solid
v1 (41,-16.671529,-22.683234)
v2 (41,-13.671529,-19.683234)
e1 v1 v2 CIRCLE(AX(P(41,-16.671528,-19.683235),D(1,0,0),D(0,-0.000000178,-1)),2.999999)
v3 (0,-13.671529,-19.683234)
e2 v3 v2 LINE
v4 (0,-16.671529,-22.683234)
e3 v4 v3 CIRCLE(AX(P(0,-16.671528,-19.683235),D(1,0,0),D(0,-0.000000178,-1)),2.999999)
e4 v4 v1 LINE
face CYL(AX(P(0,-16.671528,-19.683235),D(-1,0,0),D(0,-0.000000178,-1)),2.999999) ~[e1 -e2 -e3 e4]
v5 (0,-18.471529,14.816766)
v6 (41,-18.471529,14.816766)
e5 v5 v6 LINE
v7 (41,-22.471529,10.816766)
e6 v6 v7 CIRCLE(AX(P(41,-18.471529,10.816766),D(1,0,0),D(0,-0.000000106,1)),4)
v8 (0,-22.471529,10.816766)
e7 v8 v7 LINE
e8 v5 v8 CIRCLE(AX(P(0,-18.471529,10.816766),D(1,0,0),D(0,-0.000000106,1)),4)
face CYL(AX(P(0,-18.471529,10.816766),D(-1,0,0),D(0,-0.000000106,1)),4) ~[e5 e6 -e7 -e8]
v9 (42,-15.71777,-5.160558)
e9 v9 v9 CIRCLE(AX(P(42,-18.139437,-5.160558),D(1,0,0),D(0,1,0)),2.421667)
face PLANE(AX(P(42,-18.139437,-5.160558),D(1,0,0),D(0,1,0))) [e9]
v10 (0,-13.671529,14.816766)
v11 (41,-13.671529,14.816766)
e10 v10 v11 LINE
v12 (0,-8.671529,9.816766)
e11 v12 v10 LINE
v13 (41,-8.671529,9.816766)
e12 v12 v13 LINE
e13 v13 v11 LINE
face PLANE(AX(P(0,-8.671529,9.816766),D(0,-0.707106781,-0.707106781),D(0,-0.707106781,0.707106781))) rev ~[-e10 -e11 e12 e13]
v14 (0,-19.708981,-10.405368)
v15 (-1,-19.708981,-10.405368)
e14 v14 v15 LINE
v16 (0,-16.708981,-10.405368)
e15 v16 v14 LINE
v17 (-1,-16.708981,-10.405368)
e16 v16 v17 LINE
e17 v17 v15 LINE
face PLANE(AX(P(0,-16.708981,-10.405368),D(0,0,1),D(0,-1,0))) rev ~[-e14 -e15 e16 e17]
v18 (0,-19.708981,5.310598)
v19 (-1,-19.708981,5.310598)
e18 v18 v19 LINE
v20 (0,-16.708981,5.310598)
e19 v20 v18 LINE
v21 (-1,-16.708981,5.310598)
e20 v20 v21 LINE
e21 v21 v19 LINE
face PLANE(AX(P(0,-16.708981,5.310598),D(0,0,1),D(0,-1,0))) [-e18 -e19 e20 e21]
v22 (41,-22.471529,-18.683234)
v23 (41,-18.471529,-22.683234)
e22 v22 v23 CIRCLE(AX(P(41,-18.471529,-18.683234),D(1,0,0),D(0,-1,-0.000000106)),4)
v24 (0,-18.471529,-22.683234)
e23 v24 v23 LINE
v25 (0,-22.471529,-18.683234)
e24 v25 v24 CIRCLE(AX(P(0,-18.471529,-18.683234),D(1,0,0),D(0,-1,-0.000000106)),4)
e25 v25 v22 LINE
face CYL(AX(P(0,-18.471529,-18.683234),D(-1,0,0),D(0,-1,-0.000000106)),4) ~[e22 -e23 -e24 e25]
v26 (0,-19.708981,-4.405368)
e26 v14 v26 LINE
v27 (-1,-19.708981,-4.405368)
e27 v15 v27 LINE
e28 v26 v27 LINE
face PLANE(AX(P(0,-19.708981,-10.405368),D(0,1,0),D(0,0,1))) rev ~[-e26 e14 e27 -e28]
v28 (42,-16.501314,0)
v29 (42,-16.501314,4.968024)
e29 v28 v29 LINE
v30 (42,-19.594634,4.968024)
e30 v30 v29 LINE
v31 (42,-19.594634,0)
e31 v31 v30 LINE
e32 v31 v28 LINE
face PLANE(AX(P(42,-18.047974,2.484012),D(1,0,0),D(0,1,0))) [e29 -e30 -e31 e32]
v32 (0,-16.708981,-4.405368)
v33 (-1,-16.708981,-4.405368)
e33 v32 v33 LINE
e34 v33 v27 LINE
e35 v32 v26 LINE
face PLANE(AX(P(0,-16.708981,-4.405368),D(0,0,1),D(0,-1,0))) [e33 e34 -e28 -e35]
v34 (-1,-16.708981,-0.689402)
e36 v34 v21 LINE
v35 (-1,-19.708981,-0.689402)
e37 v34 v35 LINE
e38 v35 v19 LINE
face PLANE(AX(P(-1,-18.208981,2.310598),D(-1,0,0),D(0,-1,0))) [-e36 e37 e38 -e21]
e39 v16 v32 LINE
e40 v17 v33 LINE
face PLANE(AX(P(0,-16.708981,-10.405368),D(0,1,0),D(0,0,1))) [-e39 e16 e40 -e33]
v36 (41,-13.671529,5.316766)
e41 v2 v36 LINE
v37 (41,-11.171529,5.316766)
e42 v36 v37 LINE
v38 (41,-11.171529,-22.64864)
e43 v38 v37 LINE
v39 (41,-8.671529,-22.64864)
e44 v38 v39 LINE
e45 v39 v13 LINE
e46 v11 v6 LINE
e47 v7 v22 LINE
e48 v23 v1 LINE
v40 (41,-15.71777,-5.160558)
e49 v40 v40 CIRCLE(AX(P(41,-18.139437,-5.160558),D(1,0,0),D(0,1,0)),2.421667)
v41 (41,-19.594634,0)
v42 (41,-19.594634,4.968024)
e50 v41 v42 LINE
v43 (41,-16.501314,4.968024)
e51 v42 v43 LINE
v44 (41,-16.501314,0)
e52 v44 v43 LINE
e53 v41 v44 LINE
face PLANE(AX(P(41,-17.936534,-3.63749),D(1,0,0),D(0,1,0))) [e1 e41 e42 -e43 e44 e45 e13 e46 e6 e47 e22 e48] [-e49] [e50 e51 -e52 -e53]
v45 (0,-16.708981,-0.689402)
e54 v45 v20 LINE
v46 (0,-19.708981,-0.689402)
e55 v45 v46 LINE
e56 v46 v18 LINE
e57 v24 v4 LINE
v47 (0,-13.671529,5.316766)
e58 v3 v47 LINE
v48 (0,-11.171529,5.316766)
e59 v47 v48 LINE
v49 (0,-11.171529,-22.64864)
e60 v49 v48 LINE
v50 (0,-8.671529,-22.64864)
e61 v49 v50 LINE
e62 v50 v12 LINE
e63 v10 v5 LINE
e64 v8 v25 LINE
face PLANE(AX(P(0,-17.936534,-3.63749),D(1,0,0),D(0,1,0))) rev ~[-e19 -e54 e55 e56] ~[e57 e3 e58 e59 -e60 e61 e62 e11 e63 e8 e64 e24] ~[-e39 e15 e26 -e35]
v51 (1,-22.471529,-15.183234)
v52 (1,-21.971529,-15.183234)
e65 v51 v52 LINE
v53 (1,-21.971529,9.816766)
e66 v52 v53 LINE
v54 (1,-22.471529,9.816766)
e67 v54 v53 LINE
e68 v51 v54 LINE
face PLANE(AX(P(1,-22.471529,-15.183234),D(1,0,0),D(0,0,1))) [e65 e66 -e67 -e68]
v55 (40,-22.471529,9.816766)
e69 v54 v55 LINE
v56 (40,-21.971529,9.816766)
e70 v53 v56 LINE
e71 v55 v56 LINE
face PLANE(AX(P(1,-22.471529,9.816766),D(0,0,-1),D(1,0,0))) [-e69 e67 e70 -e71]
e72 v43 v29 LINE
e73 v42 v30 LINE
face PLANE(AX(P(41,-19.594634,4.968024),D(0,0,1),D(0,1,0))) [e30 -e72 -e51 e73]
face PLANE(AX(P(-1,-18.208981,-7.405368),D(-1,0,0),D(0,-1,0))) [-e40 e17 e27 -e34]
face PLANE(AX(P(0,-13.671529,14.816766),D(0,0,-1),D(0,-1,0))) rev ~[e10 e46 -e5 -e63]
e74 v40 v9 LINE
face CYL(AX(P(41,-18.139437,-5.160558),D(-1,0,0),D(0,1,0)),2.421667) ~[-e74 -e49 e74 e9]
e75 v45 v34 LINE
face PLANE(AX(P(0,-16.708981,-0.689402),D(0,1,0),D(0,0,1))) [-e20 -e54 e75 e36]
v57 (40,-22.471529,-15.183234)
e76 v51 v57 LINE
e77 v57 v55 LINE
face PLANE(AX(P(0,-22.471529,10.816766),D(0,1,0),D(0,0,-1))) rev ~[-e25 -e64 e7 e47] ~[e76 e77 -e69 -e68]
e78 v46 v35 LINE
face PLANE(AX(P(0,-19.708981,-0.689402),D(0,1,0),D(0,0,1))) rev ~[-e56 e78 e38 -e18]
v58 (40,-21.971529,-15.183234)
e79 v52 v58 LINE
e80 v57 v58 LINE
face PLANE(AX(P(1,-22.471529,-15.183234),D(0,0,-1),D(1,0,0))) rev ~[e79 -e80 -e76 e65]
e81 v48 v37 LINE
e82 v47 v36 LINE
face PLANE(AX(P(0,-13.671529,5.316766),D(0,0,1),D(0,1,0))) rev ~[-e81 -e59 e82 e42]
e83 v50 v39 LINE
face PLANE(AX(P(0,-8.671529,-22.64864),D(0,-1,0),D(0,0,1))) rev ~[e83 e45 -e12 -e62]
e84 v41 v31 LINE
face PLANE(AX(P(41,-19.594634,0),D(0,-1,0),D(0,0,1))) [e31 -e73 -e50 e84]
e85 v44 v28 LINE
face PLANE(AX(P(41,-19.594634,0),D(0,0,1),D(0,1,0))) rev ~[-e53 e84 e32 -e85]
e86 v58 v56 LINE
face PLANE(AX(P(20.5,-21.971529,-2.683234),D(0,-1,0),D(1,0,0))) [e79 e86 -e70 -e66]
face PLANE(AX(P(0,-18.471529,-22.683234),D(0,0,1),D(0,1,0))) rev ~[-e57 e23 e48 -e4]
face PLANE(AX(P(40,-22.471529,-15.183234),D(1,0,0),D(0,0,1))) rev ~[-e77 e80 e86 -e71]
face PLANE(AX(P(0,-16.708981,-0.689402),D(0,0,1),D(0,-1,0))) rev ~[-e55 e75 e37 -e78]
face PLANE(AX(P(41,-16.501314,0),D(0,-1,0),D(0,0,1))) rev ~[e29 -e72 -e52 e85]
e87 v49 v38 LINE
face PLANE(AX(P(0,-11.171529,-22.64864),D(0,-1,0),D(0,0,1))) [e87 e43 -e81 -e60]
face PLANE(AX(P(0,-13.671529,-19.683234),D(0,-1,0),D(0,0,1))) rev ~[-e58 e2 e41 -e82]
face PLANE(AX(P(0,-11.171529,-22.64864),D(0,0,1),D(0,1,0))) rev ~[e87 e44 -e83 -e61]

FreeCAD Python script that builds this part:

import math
import FreeCAD as App
import Part
import Sketcher
Q = App.Units.Quantity


def add_polygon(sketch, points):
    """Adds a closed chain of lines whose ends are joined by coincident constraints."""
    first, n = sketch.GeometryCount, len(points)
    for a, b in zip(points, points[1:] + points[:1]):
        sketch.addGeometry(Part.LineSegment(App.Vector(*a, 0), App.Vector(*b, 0)), False)
    for i in range(n):
        sketch.addConstraint(Sketcher.Constraint("Coincident", first + i, 2, first + (i + 1) % n, 1))

doc = App.newDocument("Part")
body = doc.addObject("PartDesign::Body", "Body")

sketch1 = body.newObject("Sketcher::SketchObject", "Sketch")
sketch1.AttachmentSupport = (doc.getObject("YZ_Plane"), [""])
sketch1.MapMode = "FlatFace"
sketch1.addGeometry(Part.LineSegment(App.Vector(-13.7, 14.8, 0), App.Vector(-18.5, 14.8, 0)), False)
sketch1.addGeometry(Part.ArcOfCircle(Part.Circle(App.Vector(-18.5, 10.8, 0), App.Vector(0, 0, 1), 4), math.radians(90), math.radians(180)), False)
sketch1.addGeometry(Part.LineSegment(App.Vector(-22.5, 10.8, 0), App.Vector(-22.5, -18.7, 0)), False)
sketch1.addGeometry(Part.ArcOfCircle(Part.Circle(App.Vector(-18.5, -18.7, 0), App.Vector(0, 0, 1), 4), math.radians(-180), math.radians(-90)), False)
sketch1.addGeometry(Part.LineSegment(App.Vector(-18.5, -22.7, 0), App.Vector(-16.7, -22.7, 0)), False)
sketch1.addGeometry(Part.ArcOfCircle(Part.Circle(App.Vector(-16.7, -19.7, 0), App.Vector(0, 0, 1), 3), math.radians(-90), math.radians(0)), False)
sketch1.addGeometry(Part.LineSegment(App.Vector(-13.7, -19.7, 0), App.Vector(-13.7, 5.3, 0)), False)
sketch1.addGeometry(Part.LineSegment(App.Vector(-13.7, 5.3, 0), App.Vector(-11.2, 5.3, 0)), False)
sketch1.addGeometry(Part.LineSegment(App.Vector(-11.2, 5.3, 0), App.Vector(-11.2, -22.6, 0)), False)
sketch1.addGeometry(Part.LineSegment(App.Vector(-11.2, -22.6, 0), App.Vector(-8.7, -22.6, 0)), False)
sketch1.addGeometry(Part.LineSegment(App.Vector(-8.7, -22.6, 0), App.Vector(-8.7, 9.8, 0)), False)
sketch1.addGeometry(Part.LineSegment(App.Vector(-8.7, 9.8, 0), App.Vector(-13.7, 14.8, 0)), False)
sketch1.addConstraint(Sketcher.Constraint("Tangent", 0, 2, 1, 1))
sketch1.addConstraint(Sketcher.Constraint("Tangent", 1, 2, 2, 1))
sketch1.addConstraint(Sketcher.Constraint("Tangent", 2, 2, 3, 1))
sketch1.addConstraint(Sketcher.Constraint("Tangent", 3, 2, 4, 1))
sketch1.addConstraint(Sketcher.Constraint("Tangent", 4, 2, 5, 1))
sketch1.addConstraint(Sketcher.Constraint("Tangent", 5, 2, 6, 1))
sketch1.addConstraint(Sketcher.Constraint("Coincident", 6, 2, 7, 1))
sketch1.addConstraint(Sketcher.Constraint("Coincident", 7, 2, 8, 1))
sketch1.addConstraint(Sketcher.Constraint("Coincident", 8, 2, 9, 1))
sketch1.addConstraint(Sketcher.Constraint("Coincident", 9, 2, 10, 1))
sketch1.addConstraint(Sketcher.Constraint("Coincident", 10, 2, 11, 1))
sketch1.addConstraint(Sketcher.Constraint("Coincident", 11, 2, 0, 1))
sketch1.addConstraint(Sketcher.Constraint("Horizontal", 0))
sketch1.addConstraint(Sketcher.Constraint("Vertical", 2))
sketch1.addConstraint(Sketcher.Constraint("Horizontal", 4))
sketch1.addConstraint(Sketcher.Constraint("Vertical", 6))
sketch1.addConstraint(Sketcher.Constraint("Horizontal", 7))
sketch1.addConstraint(Sketcher.Constraint("Vertical", 8))
sketch1.addConstraint(Sketcher.Constraint("Horizontal", 9))
sketch1.addConstraint(Sketcher.Constraint("Vertical", 10))
sketch1.addConstraint(Sketcher.Constraint("Equal", 1, 3))
sketch1.addConstraint(Sketcher.Constraint("Vertical", 6, 2, 11, 2))
sketch1.addConstraint(Sketcher.Constraint("Equal", 7, 9))
sketch1.addConstraint(Sketcher.Constraint("Radius", 1, 4.0))
sketch1.addConstraint(Sketcher.Constraint("Radius", 5, 2.999999))
sketch1.addConstraint(Sketcher.Constraint("DistanceY", 6, 1, 6, 2, 25.0))
sketch1.addConstraint(Sketcher.Constraint("Angle", 11, Q("135 deg")))
sketch1.addConstraint(Sketcher.Constraint("DistanceX", 0, 2, 0, 1, 4.8))
sketch1.addConstraint(Sketcher.Constraint("DistanceX", 7, 1, 7, 2, 2.5))
sketch1.addConstraint(Sketcher.Constraint("DistanceY", 2, 2, 2, 1, 29.5))
sketch1.addConstraint(Sketcher.Constraint("DistanceY", 8, 2, 8, 1, 27.965406))
sketch1.addConstraint(Sketcher.Constraint("DistanceX", 1, 3, -1, 1, 18.471529))
sketch1.addConstraint(Sketcher.Constraint("DistanceY", 8, 2, -1, 1, 22.64864))
pad1 = body.newObject("PartDesign::Pad", "Pad")
pad1.Profile = sketch1
pad1.Length = 41

sketch2 = body.newObject("Sketcher::SketchObject", "Sketch001")
sketch2.AttachmentSupport = (doc.getObject("YZ_Plane"), [""])
sketch2.MapMode = "FlatFace"
sketch2.AttachmentOffset = App.Placement(App.Vector(0, 0, 41), App.Rotation())
add_polygon(sketch2, [(-19.6, 5), (-19.6, 0), (-16.5, 0), (-16.5, 5)])
sketch2.addGeometry(Part.Circle(App.Vector(-18.1, -5.2, 0), App.Vector(0, 0, 1), 2.4), False)
sketch2.addConstraint(Sketcher.Constraint("Vertical", 0))
sketch2.addConstraint(Sketcher.Constraint("Horizontal", 1))
sketch2.addConstraint(Sketcher.Constraint("Vertical", 2))
sketch2.addConstraint(Sketcher.Constraint("Horizontal", 3))
sketch2.addConstraint(Sketcher.Constraint("PointOnObject", 0, 2, -1))
sketch2.addConstraint(Sketcher.Constraint("Diameter", 4, 4.843334))
sketch2.addConstraint(Sketcher.Constraint("DistanceX", 1, 1, 1, 2, 3.093319))
sketch2.addConstraint(Sketcher.Constraint("DistanceY", 0, 2, 0, 1, 4.968024))
sketch2.addConstraint(Sketcher.Constraint("DistanceX", 4, 3, -1, 1, 18.139437))
sketch2.addConstraint(Sketcher.Constraint("DistanceY", 4, 3, -1, 1, 5.160558))
sketch2.addConstraint(Sketcher.Constraint("DistanceX", 0, 2, -1, 1, 19.594634))
pad2 = body.newObject("PartDesign::Pad", "Pad001")
pad2.Profile = sketch2
pad2.Length = 1

sketch3 = body.newObject("Sketcher::SketchObject", "Sketch002")
sketch3.AttachmentSupport = (doc.getObject("YZ_Plane"), [""])
sketch3.MapMode = "FlatFace"
add_polygon(sketch3, [(-16.7, 5.3), (-16.7, -0.7), (-19.7, -0.7), (-19.7, 5.3)])
add_polygon(sketch3, [(-16.7, -4.4), (-16.7, -10.4), (-19.7, -10.4), (-19.7, -4.4)])
sketch3.addConstraint(Sketcher.Constraint("Vertical", 0))
sketch3.addConstraint(Sketcher.Constraint("Horizontal", 1))
sketch3.addConstraint(Sketcher.Constraint("Vertical", 2))
sketch3.addConstraint(Sketcher.Constraint("Horizontal", 3))
sketch3.addConstraint(Sketcher.Constraint("Vertical", 4))
sketch3.addConstraint(Sketcher.Constraint("Horizontal", 5))
sketch3.addConstraint(Sketcher.Constraint("Vertical", 6))
sketch3.addConstraint(Sketcher.Constraint("Horizontal", 7))
sketch3.addConstraint(Sketcher.Constraint("Vertical", 3, 2, 4, 2))
sketch3.addConstraint(Sketcher.Constraint("Vertical", 2, 2, 5, 2))
sketch3.addConstraint(Sketcher.Constraint("Equal", 2, 4))
sketch3.addConstraint(Sketcher.Constraint("DistanceX", 1, 2, 1, 1, 3.0))
sketch3.addConstraint(Sketcher.Constraint("DistanceY", 0, 2, 0, 1, 6.0))
sketch3.addConstraint(Sketcher.Constraint("DistanceY", 0, 2, -1, 1, 0.689402))
sketch3.addConstraint(Sketcher.Constraint("DistanceX", 0, 2, -1, 1, 16.708981))
sketch3.addConstraint(Sketcher.Constraint("DistanceY", 6, 2, -1, 1, 4.405368))
pad3 = body.newObject("PartDesign::Pad", "Pad002")
pad3.Profile = sketch3
pad3.Length = 1
pad3.Reversed = True

sketch4 = body.newObject("Sketcher::SketchObject", "Sketch003")
sketch4.AttachmentSupport = (doc.getObject("XZ_Plane"), [""])
sketch4.MapMode = "FlatFace"
sketch4.AttachmentOffset = App.Placement(App.Vector(0, 0, 22.471529), App.Rotation())
add_polygon(sketch4, [(1, 10), (1, -15), (40, -15), (40, 10)])
sketch4.addConstraint(Sketcher.Constraint("Vertical", 0))
sketch4.addConstraint(Sketcher.Constraint("Horizontal", 1))
sketch4.addConstraint(Sketcher.Constraint("Vertical", 2))
sketch4.addConstraint(Sketcher.Constraint("Horizontal", 3))
sketch4.addConstraint(Sketcher.Constraint("DistanceX", 1, 1, 1, 2, 39.0))
sketch4.addConstraint(Sketcher.Constraint("DistanceY", 0, 2, 0, 1, 25.0))
sketch4.addConstraint(Sketcher.Constraint("DistanceX", -1, 1, 0, 2, 1.0))
sketch4.addConstraint(Sketcher.Constraint("DistanceY", 0, 2, -1, 1, 15.183234))
pocket1 = body.newObject("PartDesign::Pocket", "Pocket")
pocket1.Profile = sketch4
pocket1.Length = 0.5

doc.recompute()
